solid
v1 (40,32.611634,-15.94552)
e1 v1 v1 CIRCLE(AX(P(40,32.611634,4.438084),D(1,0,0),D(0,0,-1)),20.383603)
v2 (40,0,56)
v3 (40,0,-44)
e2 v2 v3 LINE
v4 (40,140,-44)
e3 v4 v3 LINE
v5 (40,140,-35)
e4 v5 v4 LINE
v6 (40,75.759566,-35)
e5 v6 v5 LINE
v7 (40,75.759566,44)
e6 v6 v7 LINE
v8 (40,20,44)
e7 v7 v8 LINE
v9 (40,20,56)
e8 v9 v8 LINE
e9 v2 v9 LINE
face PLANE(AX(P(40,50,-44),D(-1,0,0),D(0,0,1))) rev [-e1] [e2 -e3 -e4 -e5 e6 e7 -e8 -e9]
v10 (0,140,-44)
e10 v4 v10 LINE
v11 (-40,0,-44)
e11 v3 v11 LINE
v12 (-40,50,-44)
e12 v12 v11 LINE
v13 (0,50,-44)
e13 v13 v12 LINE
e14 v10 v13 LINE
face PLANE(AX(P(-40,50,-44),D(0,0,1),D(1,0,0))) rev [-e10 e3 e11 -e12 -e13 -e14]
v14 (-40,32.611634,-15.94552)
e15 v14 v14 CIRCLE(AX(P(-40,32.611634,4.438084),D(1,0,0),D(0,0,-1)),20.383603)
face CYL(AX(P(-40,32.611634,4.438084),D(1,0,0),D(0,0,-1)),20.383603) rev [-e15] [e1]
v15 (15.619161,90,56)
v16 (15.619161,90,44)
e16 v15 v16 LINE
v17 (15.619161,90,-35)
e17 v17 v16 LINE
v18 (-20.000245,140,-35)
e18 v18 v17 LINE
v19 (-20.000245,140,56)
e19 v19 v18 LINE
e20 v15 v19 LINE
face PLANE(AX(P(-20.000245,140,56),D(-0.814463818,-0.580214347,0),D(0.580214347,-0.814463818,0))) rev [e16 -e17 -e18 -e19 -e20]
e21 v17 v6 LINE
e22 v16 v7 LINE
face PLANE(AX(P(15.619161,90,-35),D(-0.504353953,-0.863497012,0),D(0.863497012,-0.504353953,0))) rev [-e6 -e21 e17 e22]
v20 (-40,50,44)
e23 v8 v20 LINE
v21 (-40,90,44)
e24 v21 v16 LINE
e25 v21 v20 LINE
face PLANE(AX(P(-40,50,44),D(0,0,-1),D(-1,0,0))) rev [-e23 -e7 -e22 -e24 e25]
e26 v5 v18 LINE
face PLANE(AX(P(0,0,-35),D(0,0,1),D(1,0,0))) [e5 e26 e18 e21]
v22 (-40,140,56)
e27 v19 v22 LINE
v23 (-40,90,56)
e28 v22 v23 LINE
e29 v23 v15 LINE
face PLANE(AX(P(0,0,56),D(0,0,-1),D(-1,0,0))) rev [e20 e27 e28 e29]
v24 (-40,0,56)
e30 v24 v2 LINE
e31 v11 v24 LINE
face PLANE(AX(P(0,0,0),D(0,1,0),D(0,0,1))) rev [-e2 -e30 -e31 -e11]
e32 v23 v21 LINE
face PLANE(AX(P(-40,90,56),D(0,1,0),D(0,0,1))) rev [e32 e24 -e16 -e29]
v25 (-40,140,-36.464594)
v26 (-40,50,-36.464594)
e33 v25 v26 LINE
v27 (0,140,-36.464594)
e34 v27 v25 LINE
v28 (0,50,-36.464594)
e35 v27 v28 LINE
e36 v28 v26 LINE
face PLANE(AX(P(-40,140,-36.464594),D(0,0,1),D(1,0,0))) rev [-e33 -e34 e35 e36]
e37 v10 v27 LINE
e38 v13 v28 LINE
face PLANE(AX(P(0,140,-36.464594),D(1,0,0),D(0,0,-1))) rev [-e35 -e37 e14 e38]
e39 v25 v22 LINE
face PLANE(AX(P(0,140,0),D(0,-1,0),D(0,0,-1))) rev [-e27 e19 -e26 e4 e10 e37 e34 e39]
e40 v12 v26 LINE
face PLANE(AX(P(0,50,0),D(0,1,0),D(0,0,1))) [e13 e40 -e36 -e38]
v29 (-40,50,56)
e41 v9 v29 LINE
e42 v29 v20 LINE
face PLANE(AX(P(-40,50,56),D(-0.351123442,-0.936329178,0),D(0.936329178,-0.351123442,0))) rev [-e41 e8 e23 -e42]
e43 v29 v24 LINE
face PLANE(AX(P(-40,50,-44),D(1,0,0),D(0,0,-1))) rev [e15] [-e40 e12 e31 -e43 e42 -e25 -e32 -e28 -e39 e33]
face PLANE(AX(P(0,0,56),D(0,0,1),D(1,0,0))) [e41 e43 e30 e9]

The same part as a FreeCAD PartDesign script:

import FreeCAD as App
import Part
import Sketcher
from FreeCAD import Vector

doc = App.newDocument("Part")
body = doc.addObject("PartDesign::Body", "Body")

sketch1 = body.newObject("Sketcher::SketchObject", "Sketch")
sketch1.AttachmentSupport = (doc.getObject("XZ_Plane"), [""])
sketch1.MapMode = "FlatFace"
sketch1.addGeometry([
    Part.LineSegment(Vector(-40, -44, 0), Vector(-40, 44, 0)),
    Part.LineSegment(Vector(-40, 44, 0), Vector(40, 44, 0)),
    Part.LineSegment(Vector(40, 44, 0), Vector(40, -44, 0)),
    Part.LineSegment(Vector(40, -44, 0), Vector(-40, -44, 0)),
], False)
sketch1.addConstraint([
    Sketcher.Constraint("Coincident", 0, 2, 1, 1),
    Sketcher.Constraint("Coincident", 1, 2, 2, 1),
    Sketcher.Constraint("Coincident", 2, 2, 3, 1),
    Sketcher.Constraint("Coincident", 3, 2, 0, 1),
    Sketcher.Constraint("Vertical", 0),
    Sketcher.Constraint("Horizontal", 1),
    Sketcher.Constraint("Vertical", 2),
    Sketcher.Constraint("Horizontal", 3),
    Sketcher.Constraint("Symmetric", 0, 2, 2, 2, -1, 1),
    Sketcher.Constraint("DistanceX", 1, 1, 1, 2, 80.0),
    Sketcher.Constraint("DistanceY", 0, 1, 0, 2, 88.0),
])
pad1 = body.newObject("PartDesign::Pad", "Pad")
pad1.Profile = sketch1
pad1.Length = 50
pad1.Reversed = True

sketch2 = body.newObject("Sketcher::SketchObject", "Sketch001")
sketch2.AttachmentSupport = (doc.getObject("XY_Plane"), [""])
sketch2.MapMode = "FlatFace"
sketch2.AttachmentOffset = App.Placement(Vector(0, 0, 44), App.Rotation())
sketch2.addGeometry([
    Part.LineSegment(Vector(40, 0, 0), Vector(40, 20, 0)),
    Part.LineSegment(Vector(40, 20, 0), Vector(-40, 50, 0)),
    Part.LineSegment(Vector(-40, 50, 0), Vector(-40, 0, 0)),
    Part.LineSegment(Vector(-40, 0, 0), Vector(40, 0, 0)),
], False)
sketch2.addConstraint([
    Sketcher.Constraint("Coincident", 0, 2, 1, 1),
    Sketcher.Constraint("Coincident", 1, 2, 2, 1),
    Sketcher.Constraint("Coincident", 2, 2, 3, 1),
    Sketcher.Constraint("Coincident", 3, 2, 0, 1),
    Sketcher.Constraint("Vertical", 0),
    Sketcher.Constraint("Vertical", 2),
    Sketcher.Constraint("Horizontal", 3),
    Sketcher.Constraint("Symmetric", 2, 2, 3, 2, -1, 1),
    Sketcher.Constraint("DistanceX", 3, 1, 3, 2, 80.0),
    Sketcher.Constraint("DistanceY", 0, 1, 0, 2, 20.0),
    Sketcher.Constraint("DistanceY", 2, 2, 2, 1, 50.0),
])
pad2 = body.newObject("PartDesign::Pad", "Pad001")
pad2.Profile = sketch2
pad2.Length = 12

sketch3 = body.newObject("Sketcher::SketchObject", "Sketch002")
sketch3.AttachmentSupport = (doc.getObject("XZ_Plane"), [""])
sketch3.MapMode = "FlatFace"
sketch3.AttachmentOffset = App.Placement(Vector(0, 0, -50), App.Rotation())
sketch3.addGeometry([
    Part.LineSegment(Vector(-40, -36, 0), Vector(-40, 44, 0)),
    Part.LineSegment(Vector(-40, 44, 0), Vector(40, 44, 0)),
    Part.LineSegment(Vector(40, 44, 0), Vector(40, -44, 0)),
    Part.LineSegment(Vector(40, -44, 0), Vector(0, -44, 0)),
    Part.LineSegment(Vector(0, -44, 0), Vector(0, -36, 0)),
    Part.LineSegment(Vector(0, -36, 0), Vector(-40, -36, 0)),
], False)
sketch3.addConstraint([
    Sketcher.Constraint("Coincident", 0, 2, 1, 1),
    Sketcher.Constraint("Coincident", 1, 2, 2, 1),
    Sketcher.Constraint("Coincident", 2, 2, 3, 1),
    Sketcher.Constraint("Coincident", 3, 2, 4, 1),
    Sketcher.Constraint("Coincident", 4, 2, 5, 1),
    Sketcher.Constraint("Coincident", 5, 2, 0, 1),
    Sketcher.Constraint("Vertical", 0),
    Sketcher.Constraint("Horizontal", 1),
    Sketcher.Constraint("Vertical", 2),
    Sketcher.Constraint("Horizontal", 3),
    Sketcher.Constraint("Vertical", 4),
    Sketcher.Constraint("Horizontal", 5),
    Sketcher.Constraint("Symmetric", 0, 2, 2, 2, -1, 1),
    Sketcher.Constraint("PointOnObject", 3, 2, -2),
    Sketcher.Constraint("DistanceX", 1, 1, 1, 2, 80.0),
    Sketcher.Constraint("DistanceY", 2, 2, 2, 1, 88.0),
    Sketcher.Constraint("DistanceY", 0, 1, 0, 2, 80.464594),
])
pad3 = body.newObject("PartDesign::Pad", "Pad002")
pad3.Profile = sketch3
pad3.Length = 90
pad3.Reversed = True

sketch4 = body.newObject("Sketcher::SketchObject", "Sketch003")
sketch4.AttachmentSupport = (doc.getObject("XY_Plane"), [""])
sketch4.MapMode = "FlatFace"
sketch4.AttachmentOffset = App.Placement(Vector(0, 0, 44), App.Rotation())
sketch4.addGeometry([
    Part.LineSegment(Vector(-40, 140, 0), Vector(-40, 90, 0)),
    Part.LineSegment(Vector(-40, 90, 0), Vector(16, 90, 0)),
    Part.LineSegment(Vector(16, 90, 0), Vector(-20, 140, 0)),
    Part.LineSegment(Vector(-20, 140, 0), Vector(-40, 140, 0)),
], False)
sketch4.addConstraint([
    Sketcher.Constraint("Coincident", 0, 2, 1, 1),
    Sketcher.Constraint("Coincident", 1, 2, 2, 1),
    Sketcher.Constraint("Coincident", 2, 2, 3, 1),
    Sketcher.Constraint("Coincident", 3, 2, 0, 1),
    Sketcher.Constraint("Vertical", 0),
    Sketcher.Constraint("Horizontal", 1),
    Sketcher.Constraint("Horizontal", 3),
    Sketcher.Constraint("DistanceY", 0, 2, 0, 1, 50.0),
    Sketcher.Constraint("DistanceX", 0, 2, -1, 1, 40.0),
    Sketcher.Constraint("DistanceY", -1, 1, 0, 2, 90.0),
    Sketcher.Constraint("DistanceX", 1, 1, 1, 2, 55.619161),
    Sketcher.Constraint("Distance", 2, 61.390081),
])
pad4 = body.newObject("PartDesign::Pad", "Pad003")
pad4.Profile = sketch4
pad4.Length = 12

sketch5 = body.newObject("Sketcher::SketchObject", "Sketch004")
sketch5.AttachmentSupport = (doc.getObject("XY_Plane"), [""])
sketch5.MapMode = "FlatFace"
sketch5.AttachmentOffset = App.Placement(Vector(0, 0, 44), App.Rotation())
sketch5.addGeometry([
    Part.LineSegment(Vector(40, 140, 0), Vector(-20, 140, 0)),
    Part.LineSegment(Vector(-20, 140, 0), Vector(16, 90, 0)),
    Part.LineSegment(Vector(16, 90, 0), Vector(40, 90, 0)),
    Part.LineSegment(Vector(40, 90, 0), Vector(40, 140, 0)),
], False)
sketch5.addConstraint([
    Sketcher.Constraint("Coincident", 0, 2, 1, 1),
    Sketcher.Constraint("Coincident", 1, 2, 2, 1),
    Sketcher.Constraint("Coincident", 2, 2, 3, 1),
    Sketcher.Constraint("Coincident", 3, 2, 0, 1),
    Sketcher.Constraint("Horizontal", 0),
    Sketcher.Constraint("Horizontal", 2),
    Sketcher.Constraint("Vertical", 3),
    Sketcher.Constraint("DistanceY", 3, 1, 3, 2, 50.0),
    Sketcher.Constraint("DistanceY", -1, 1, 0, 2, 140.0),
    Sketcher.Constraint("DistanceX", -1, 1, 2, 2, 40.0),
    Sketcher.Constraint("DistanceX", 2, 1, 2, 2, 24.380839),
    Sketcher.Constraint("Distance", 1, 61.390081),
])
pocket1 = body.newObject("PartDesign::Pocket", "Pocket")
pocket1.Profile = sketch5
pocket1.Length = 79

sketch6 = body.newObject("Sketcher::SketchObject", "Sketch005")
sketch6.AttachmentSupport = (doc.getObject("YZ_Plane"), [""])
sketch6.MapMode = "FlatFace"
sketch6.AttachmentOffset = App.Placement(Vector(0, 0, 40), App.Rotation())
sketch6.addGeometry([
    Part.LineSegment(Vector(62, -35, 0), Vector(90, -35, 0)),
    Part.LineSegment(Vector(90, -35, 0), Vector(90, 44, 0)),
    Part.LineSegment(Vector(90, 44, 0), Vector(60, 44, 0)),
    Part.LineSegment(Vector(60, 44, 0), Vector(62, -35, 0)),
], False)
sketch6.addConstraint([
    Sketcher.Constraint("Coincident", 0, 2, 1, 1),
    Sketcher.Constraint("Coincident", 1, 2, 2, 1),
    Sketcher.Constraint("Coincident", 2, 2, 3, 1),
    Sketcher.Constraint("Coincident", 3, 2, 0, 1),
    Sketcher.Constraint("Horizontal", 0),
    Sketcher.Constraint("Vertical", 1),
    Sketcher.Constraint("Horizontal", 2),
    Sketcher.Constraint("DistanceY", 1, 1, 1, 2, 79.0),
    Sketcher.Constraint("DistanceX", -1, 1, 0, 2, 90.0),
    Sketcher.Constraint("DistanceY", 0, 2, -1, 1, 35.0),
    Sketcher.Constraint("DistanceX", 0, 1, 0, 2, 28.092304),
    Sketcher.Constraint("DistanceX", 2, 2, 2, 1, 29.859595),
])
pocket2 = body.newObject("PartDesign::Pocket", "Pocket001")
pocket2.Profile = sketch6
pocket2.Length = 34

sketch7 = body.newObject("Sketcher::SketchObject", "Sketch006")
sketch7.AttachmentSupport = (doc.getObject("YZ_Plane"), [""])
sketch7.MapMode = "FlatFace"
sketch7.AttachmentOffset = App.Placement(Vector(0, 0, 40), App.Rotation())
sketch7.addGeometry(Part.Circle(Vector(33, 4, 0), Vector(0, 0, 1), 20), False)
sketch7.addConstraint([
    Sketcher.Constraint("Diameter", 0, 40.767207),
    Sketcher.Constraint("DistanceX", -1, 1, 0, 3, 32.611634),
    Sketcher.Constraint("DistanceY", -1, 1, 0, 3, 4.438084),
])
pocket3 = body.newObject("PartDesign::Pocket", "Pocket002")
pocket3.Profile = sketch7
pocket3.Length = 80

sketch8 = body.newObject("Sketcher::SketchObject", "Sketch007")
sketch8.AttachmentSupport = (doc.getObject("YZ_Plane"), [""])
sketch8.MapMode = "FlatFace"
sketch8.AttachmentOffset = App.Placement(Vector(0, 0, 6), App.Rotation())
sketch8.addGeometry([
    Part.LineSegment(Vector(90, -35, 0), Vector(90, 44, 0)),
    Part.LineSegment(Vector(90, 44, 0), Vector(60, 44, 0)),
    Part.LineSegment(Vector(60, 44, 0), Vector(62, -35, 0)),
    Part.LineSegment(Vector(62, -35, 0), Vector(90, -35, 0)),
], False)
sketch8.addConstraint([
    Sketcher.Constraint("Coincident", 0, 2, 1, 1),
    Sketcher.Constraint("Coincident", 1, 2, 2, 1),
    Sketcher.Constraint("Coincident", 2, 2, 3, 1),
    Sketcher.Constraint("Coincident", 3, 2, 0, 1),
    Sketcher.Constraint("Vertical", 0),
    Sketcher.Constraint("Horizontal", 1),
    Sketcher.Constraint("Horizontal", 3),
    Sketcher.Constraint("DistanceY", 0, 1, 0, 2, 79.0),
    Sketcher.Constraint("DistanceX", -1, 1, 0, 2, 90.0),
    Sketcher.Constraint("DistanceY", -1, 1, 0, 2, 44.0),
    Sketcher.Constraint("DistanceX", 1, 2, 1, 1, 29.859595),
    Sketcher.Constraint("DistanceX", 3, 1, 3, 2, 28.092304),
])
pad5 = body.newObject("PartDesign::Pad", "Pad004")
pad5.Profile = sketch8
pad5.Length = 34

sketch9 = body.newObject("Sketcher::SketchObject", "Sketch008")
sketch9.AttachmentSupport = (doc.getObject("XY_Plane"), [""])
sketch9.MapMode = "FlatFace"
sketch9.AttachmentOffset = App.Placement(Vector(0, 0, 44), App.Rotation())
sketch9.addGeometry([
    Part.LineSegment(Vector(16, 90, 0), Vector(40, 76, 0)),
    Part.LineSegment(Vector(40, 76, 0), Vector(40, 90, 0)),
    Part.LineSegment(Vector(40, 90, 0), Vector(16, 90, 0)),
], False)
sketch9.addConstraint([
    Sketcher.Constraint("Coincident", 0, 2, 1, 1),
    Sketcher.Constraint("Coincident", 1, 2, 2, 1),
    Sketcher.Constraint("Coincident", 2, 2, 0, 1),
    Sketcher.Constraint("Vertical", 1),
    Sketcher.Constraint("Horizontal", 2),
    Sketcher.Constraint("DistanceX", -1, 1, 0, 2, 40.0),
    Sketcher.Constraint("DistanceY", -1, 1, 1, 2, 90.0),
    Sketcher.Constraint("Distance", 0, 28.235001),
    Sketcher.Constraint("DistanceX", 2, 2, 2, 1, 24.380839),
])
pocket4 = body.newObject("PartDesign::Pocket", "Pocket003")
pocket4.Profile = sketch9
pocket4.Length = 79

doc.recompute()
